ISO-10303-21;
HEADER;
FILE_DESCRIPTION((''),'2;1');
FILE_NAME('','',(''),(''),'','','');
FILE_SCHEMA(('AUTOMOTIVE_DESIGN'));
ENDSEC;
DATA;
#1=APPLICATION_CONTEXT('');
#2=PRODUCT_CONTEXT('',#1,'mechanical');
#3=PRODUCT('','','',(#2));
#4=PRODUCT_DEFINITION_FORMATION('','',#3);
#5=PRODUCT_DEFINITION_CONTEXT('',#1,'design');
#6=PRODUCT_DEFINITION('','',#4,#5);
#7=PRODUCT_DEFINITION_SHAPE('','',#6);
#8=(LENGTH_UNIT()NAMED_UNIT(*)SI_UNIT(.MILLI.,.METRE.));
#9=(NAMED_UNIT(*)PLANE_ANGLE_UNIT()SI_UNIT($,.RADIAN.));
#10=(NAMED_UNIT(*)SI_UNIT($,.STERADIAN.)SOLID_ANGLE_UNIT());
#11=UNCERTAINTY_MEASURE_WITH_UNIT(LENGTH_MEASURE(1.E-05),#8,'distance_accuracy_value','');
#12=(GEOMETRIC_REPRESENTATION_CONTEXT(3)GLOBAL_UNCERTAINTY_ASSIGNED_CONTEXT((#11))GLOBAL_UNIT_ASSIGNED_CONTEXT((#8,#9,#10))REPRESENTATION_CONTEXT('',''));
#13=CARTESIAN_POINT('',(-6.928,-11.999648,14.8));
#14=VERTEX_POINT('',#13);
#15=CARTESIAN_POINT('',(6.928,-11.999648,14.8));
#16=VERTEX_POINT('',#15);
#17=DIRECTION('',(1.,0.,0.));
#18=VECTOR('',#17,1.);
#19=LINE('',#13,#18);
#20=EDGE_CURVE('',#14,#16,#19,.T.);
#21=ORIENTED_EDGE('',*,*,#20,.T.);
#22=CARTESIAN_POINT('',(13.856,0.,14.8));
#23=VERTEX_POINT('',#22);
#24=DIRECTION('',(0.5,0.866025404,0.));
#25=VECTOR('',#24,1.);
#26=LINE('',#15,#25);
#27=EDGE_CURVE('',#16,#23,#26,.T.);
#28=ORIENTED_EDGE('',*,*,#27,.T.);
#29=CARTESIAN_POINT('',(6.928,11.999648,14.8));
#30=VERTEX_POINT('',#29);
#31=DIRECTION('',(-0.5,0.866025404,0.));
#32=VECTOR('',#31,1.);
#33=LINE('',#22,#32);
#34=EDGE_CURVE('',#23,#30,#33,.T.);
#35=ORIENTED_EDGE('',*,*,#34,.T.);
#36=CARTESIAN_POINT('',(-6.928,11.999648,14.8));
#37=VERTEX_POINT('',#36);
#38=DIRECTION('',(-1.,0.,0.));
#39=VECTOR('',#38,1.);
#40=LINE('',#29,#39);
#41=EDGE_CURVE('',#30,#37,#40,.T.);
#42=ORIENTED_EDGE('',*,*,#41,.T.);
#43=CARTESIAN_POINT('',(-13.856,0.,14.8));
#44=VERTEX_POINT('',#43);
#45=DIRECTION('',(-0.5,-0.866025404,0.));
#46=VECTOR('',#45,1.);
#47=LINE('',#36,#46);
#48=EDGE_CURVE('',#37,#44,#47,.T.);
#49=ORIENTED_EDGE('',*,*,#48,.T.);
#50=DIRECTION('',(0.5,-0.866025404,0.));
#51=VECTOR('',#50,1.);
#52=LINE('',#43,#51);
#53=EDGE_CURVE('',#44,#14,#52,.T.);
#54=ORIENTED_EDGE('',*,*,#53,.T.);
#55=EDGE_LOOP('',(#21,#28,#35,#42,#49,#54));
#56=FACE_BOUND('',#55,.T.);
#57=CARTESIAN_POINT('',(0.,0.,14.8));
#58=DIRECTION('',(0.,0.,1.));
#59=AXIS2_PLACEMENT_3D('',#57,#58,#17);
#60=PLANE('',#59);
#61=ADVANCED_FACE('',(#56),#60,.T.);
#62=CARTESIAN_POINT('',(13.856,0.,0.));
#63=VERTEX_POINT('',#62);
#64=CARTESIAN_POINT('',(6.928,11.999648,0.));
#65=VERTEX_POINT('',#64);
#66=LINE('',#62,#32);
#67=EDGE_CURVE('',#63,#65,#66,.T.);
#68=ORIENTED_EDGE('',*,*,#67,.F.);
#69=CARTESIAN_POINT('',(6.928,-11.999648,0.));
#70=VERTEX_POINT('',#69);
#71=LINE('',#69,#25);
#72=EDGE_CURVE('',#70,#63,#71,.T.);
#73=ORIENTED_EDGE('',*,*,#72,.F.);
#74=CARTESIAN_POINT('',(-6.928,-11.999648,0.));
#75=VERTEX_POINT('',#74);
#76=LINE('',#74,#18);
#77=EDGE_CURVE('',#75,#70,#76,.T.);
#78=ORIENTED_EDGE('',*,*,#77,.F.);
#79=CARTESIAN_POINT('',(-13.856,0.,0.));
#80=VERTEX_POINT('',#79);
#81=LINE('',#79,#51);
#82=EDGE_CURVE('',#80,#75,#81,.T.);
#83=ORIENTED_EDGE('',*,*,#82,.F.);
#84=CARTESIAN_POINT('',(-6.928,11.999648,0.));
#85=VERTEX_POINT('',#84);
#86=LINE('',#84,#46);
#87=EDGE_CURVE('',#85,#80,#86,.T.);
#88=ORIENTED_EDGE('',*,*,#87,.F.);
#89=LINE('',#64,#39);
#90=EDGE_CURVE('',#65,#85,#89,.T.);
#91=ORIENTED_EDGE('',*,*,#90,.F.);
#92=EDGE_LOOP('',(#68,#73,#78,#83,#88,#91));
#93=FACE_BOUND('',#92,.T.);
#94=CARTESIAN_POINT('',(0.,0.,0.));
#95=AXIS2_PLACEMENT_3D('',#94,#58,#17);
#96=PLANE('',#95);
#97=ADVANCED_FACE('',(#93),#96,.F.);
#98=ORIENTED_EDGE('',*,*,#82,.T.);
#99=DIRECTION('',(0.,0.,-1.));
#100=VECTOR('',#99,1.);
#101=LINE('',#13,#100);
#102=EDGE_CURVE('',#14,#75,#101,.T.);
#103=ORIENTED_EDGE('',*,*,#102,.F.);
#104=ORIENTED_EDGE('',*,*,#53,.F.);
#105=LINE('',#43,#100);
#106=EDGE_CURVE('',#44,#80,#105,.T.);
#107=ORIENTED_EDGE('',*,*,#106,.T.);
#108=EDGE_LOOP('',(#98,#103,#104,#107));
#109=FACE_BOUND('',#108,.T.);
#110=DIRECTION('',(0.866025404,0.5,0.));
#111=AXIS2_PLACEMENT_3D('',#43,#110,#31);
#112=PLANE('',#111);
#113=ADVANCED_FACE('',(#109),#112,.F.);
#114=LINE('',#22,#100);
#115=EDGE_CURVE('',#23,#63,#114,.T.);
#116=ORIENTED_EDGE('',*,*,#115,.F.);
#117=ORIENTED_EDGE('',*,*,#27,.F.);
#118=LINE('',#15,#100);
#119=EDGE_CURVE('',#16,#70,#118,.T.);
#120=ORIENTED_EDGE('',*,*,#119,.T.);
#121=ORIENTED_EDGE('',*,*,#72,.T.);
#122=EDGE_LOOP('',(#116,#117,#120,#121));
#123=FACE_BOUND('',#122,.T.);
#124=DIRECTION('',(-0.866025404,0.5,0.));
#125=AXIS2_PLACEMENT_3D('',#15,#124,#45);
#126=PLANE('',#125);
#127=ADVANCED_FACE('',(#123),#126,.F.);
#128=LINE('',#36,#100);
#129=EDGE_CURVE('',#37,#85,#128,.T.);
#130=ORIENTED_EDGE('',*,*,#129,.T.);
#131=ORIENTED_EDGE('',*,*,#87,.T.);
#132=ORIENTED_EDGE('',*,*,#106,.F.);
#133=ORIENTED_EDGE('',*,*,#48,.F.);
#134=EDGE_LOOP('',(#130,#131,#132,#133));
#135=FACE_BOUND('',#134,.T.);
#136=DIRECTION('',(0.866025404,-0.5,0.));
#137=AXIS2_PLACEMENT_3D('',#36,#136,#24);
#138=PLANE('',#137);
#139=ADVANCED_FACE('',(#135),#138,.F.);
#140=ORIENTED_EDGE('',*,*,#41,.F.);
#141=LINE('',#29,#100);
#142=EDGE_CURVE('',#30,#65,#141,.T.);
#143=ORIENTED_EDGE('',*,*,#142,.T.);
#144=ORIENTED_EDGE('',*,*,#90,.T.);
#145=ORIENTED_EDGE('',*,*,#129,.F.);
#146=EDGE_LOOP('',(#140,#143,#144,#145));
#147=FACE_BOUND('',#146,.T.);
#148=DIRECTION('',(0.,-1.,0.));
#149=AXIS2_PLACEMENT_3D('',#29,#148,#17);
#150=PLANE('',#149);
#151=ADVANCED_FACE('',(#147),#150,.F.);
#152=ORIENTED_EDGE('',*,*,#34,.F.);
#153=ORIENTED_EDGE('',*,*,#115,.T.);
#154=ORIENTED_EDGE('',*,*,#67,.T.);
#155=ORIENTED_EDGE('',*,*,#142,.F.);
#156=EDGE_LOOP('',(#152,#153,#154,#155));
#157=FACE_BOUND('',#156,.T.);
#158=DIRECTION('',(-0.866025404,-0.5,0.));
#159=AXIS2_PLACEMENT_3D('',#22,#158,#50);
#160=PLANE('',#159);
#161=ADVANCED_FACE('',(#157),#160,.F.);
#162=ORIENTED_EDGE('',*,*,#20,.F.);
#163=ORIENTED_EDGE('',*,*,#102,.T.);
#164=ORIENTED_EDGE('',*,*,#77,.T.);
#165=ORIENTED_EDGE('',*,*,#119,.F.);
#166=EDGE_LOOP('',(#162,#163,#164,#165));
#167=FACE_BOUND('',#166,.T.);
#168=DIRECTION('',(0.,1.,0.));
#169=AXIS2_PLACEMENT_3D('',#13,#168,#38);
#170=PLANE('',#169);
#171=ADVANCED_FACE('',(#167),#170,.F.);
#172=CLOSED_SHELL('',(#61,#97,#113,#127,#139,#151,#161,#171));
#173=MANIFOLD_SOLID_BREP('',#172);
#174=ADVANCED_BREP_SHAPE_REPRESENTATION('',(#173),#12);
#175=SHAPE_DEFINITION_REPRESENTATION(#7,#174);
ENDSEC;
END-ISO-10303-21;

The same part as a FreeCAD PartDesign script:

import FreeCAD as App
import Part
import Sketcher

V = App.Vector
Q = App.Units.Quantity

doc = App.newDocument("Part")
params = doc.addObject("Spreadsheet::Sheet", "Params")
for row, (alias, value) in enumerate([
    ("pad1_length", "14.8 mm"),
], start=1):
    params.set(f"A{row}", alias)
    params.set(f"B{row}", "=" + value)
    params.setAlias(f"B{row}", alias)

body = doc.addObject("PartDesign::Body", "Body")

sketch1 = doc.addObject("Sketcher::SketchObject", "Sketch")
body.addObject(sketch1)
sketch1.AttachmentSupport = (doc.XY_Plane, [""])
sketch1.MapMode = "FlatFace"
sketch1.addGeometry(Part.LineSegment(V(14, 0, 0), V(7, 12, 0)), False)
sketch1.addGeometry(Part.LineSegment(V(7, 12, 0), V(-7, 12, 0)), False)
sketch1.addGeometry(Part.LineSegment(V(-7, 12, 0), V(-14, 0, 0)), False)
sketch1.addGeometry(Part.LineSegment(V(-14, 0, 0), V(-7, -12, 0)), False)
sketch1.addGeometry(Part.LineSegment(V(-7, -12, 0), V(7, -12, 0)), False)
sketch1.addGeometry(Part.LineSegment(V(7, -12, 0), V(14, 0, 0)), False)
sketch1.addConstraint(Sketcher.Constraint("Coincident", 0, 2, 1, 1))
sketch1.addConstraint(Sketcher.Constraint("Coincident", 1, 2, 2, 1))
sketch1.addConstraint(Sketcher.Constraint("Coincident", 2, 2, 3, 1))
sketch1.addConstraint(Sketcher.Constraint("Coincident", 3, 2, 4, 1))
sketch1.addConstraint(Sketcher.Constraint("Coincident", 4, 2, 5, 1))
sketch1.addConstraint(Sketcher.Constraint("Coincident", 5, 2, 0, 1))
sketch1.addConstraint(Sketcher.Constraint("Horizontal", 1))
sketch1.addConstraint(Sketcher.Constraint("Horizontal", 4))
sketch1.addConstraint(Sketcher.Constraint("Symmetric", 0, 2, 3, 2, -1, 1))
sketch1.addConstraint(Sketcher.Constraint("Symmetric", 2, 2, 5, 2, -1, 1))
sketch1.addConstraint(Sketcher.Constraint("PointOnObject", 2, 2, -1))
sketch1.addConstraint(Sketcher.Constraint("Parallel", 2, 5))
sketch1.addConstraint(Sketcher.Constraint("Vertical", 1, 2, 3, 2))
sketch1.addConstraint(Sketcher.Constraint("Angle", 0, Q("120 deg")))
sketch1.addConstraint(Sketcher.Constraint("DistanceX", 1, 2, 1, 1, 13.856))
sketch1.addConstraint(Sketcher.Constraint("Distance", 0, 13.856))
pad1 = doc.addObject("PartDesign::Pad", "Pad")
body.addObject(pad1)
pad1.Profile = sketch1
pad1.setExpression("Length", "Params.pad1_length")

doc.recompute()
